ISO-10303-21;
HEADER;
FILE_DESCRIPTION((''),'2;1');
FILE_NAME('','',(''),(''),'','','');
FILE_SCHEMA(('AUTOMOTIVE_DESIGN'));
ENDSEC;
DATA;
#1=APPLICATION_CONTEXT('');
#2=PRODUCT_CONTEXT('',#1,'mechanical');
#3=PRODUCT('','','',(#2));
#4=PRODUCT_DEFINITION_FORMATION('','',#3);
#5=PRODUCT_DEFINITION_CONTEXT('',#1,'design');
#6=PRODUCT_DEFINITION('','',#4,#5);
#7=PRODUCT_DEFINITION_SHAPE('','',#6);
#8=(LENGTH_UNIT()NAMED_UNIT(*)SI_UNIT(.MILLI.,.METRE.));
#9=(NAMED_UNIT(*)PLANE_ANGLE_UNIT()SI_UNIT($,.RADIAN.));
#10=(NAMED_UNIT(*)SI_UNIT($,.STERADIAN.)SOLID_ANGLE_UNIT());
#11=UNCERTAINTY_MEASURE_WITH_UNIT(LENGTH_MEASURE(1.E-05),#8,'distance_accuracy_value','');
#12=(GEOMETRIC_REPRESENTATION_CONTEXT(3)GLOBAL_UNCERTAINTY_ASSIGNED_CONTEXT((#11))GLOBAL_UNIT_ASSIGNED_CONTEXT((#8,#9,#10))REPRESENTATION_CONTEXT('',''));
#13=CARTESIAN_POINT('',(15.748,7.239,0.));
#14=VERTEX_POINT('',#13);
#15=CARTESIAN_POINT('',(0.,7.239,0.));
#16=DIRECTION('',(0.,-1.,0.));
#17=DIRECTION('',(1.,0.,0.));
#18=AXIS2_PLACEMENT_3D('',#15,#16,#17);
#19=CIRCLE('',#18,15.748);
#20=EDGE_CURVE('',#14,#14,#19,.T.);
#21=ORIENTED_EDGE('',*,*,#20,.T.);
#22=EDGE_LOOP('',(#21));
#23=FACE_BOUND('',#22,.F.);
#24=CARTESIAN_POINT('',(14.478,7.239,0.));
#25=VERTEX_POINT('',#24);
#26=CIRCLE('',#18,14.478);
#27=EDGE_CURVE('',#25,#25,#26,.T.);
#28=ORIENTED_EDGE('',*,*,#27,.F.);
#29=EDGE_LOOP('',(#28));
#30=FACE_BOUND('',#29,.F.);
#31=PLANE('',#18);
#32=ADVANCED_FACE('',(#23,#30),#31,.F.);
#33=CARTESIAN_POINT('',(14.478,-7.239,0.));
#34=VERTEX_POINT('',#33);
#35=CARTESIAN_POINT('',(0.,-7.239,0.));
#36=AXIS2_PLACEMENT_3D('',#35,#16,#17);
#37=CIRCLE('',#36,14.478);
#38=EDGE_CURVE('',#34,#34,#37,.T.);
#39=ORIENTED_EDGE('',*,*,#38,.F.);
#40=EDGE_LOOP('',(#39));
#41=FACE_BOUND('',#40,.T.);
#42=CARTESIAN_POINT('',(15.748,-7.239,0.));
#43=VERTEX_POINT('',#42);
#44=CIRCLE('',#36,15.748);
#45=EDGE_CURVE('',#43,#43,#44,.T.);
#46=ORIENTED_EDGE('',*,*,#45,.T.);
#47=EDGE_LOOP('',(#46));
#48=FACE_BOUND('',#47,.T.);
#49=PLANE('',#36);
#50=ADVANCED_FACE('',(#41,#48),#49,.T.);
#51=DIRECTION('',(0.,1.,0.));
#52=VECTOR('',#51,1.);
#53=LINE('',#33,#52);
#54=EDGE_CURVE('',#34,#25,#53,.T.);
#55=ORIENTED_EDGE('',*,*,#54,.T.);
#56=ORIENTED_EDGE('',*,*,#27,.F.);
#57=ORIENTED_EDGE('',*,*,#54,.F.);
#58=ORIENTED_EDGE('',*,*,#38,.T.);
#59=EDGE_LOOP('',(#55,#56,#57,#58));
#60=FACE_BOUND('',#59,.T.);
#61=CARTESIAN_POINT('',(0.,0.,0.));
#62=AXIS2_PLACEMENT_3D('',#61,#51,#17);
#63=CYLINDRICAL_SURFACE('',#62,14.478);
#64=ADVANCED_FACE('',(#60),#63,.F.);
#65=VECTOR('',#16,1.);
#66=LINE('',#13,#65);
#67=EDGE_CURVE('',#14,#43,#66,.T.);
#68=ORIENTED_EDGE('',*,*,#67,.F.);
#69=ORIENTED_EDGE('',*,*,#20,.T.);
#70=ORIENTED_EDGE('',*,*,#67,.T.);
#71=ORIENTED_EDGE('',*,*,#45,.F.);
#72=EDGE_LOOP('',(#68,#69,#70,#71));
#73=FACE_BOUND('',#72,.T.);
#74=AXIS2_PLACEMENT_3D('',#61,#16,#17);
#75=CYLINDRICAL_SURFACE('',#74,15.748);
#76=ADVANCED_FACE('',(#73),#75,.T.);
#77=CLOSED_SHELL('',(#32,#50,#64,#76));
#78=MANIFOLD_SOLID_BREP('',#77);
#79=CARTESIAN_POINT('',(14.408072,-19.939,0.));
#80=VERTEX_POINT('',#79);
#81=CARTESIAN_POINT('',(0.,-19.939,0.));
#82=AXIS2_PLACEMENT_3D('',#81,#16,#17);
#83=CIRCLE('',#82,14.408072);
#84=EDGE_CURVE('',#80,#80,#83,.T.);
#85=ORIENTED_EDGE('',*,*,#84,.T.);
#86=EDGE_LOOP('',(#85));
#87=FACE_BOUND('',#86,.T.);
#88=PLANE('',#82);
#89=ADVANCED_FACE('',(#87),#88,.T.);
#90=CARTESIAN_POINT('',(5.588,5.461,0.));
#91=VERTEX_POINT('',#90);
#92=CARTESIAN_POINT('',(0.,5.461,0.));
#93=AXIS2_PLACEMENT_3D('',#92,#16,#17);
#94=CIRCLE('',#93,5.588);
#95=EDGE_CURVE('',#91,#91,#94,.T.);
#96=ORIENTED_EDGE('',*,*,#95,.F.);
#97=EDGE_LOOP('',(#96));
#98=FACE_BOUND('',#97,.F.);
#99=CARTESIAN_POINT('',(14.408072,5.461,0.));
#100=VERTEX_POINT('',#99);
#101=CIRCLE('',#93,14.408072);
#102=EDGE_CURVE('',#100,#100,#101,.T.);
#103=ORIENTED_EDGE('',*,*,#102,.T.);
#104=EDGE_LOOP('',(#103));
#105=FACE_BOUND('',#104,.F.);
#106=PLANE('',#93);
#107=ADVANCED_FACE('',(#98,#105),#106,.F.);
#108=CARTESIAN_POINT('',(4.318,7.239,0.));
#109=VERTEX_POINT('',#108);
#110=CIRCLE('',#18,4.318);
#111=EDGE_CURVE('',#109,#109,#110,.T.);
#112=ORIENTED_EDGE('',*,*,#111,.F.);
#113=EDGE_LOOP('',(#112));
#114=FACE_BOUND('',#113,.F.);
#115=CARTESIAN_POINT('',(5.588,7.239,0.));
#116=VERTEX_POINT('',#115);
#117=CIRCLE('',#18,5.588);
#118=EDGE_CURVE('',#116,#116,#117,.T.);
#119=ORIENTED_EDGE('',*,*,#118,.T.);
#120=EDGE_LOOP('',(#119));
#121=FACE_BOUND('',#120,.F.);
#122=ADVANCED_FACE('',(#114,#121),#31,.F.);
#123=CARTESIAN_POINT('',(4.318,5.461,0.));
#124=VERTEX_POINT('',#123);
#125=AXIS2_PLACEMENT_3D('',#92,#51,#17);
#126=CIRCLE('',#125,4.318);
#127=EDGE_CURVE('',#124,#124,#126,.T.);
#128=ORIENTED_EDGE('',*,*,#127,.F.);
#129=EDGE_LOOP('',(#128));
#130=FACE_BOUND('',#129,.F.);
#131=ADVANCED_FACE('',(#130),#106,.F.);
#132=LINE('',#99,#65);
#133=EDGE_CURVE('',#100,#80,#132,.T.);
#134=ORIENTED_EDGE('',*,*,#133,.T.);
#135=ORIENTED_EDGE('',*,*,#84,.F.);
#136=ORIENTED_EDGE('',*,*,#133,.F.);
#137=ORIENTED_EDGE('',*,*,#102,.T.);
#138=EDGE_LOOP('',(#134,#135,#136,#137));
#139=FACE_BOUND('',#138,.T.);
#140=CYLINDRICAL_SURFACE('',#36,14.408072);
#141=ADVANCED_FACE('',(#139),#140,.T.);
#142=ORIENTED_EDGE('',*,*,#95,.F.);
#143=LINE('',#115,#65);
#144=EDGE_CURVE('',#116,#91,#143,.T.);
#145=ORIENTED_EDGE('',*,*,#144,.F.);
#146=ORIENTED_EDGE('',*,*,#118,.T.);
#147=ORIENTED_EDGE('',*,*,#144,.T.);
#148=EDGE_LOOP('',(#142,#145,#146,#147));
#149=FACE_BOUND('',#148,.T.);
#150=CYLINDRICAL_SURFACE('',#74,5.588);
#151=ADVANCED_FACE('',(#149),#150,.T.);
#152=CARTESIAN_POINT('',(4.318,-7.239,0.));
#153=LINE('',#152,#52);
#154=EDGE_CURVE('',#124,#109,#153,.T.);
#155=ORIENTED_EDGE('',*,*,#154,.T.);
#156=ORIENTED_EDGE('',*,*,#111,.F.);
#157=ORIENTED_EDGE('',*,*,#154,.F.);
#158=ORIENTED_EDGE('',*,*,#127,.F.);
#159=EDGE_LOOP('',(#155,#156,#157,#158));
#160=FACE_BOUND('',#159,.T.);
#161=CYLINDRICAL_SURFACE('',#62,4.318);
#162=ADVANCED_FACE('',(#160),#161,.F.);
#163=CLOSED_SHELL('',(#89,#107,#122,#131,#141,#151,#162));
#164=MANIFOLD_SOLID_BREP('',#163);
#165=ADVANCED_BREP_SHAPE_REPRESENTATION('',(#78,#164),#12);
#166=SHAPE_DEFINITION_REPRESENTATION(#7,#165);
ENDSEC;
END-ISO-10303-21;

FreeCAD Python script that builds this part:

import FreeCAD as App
import Part
import Sketcher
Q = App.Units.Quantity

doc = App.newDocument("Part")
body = doc.addObject("PartDesign::Body", "Body")

# Sketch on XZ plane
sketch1 = body.newObject("Sketcher::SketchObject", "Sketch")
sketch1.AttachmentSupport = (doc.getObject("XZ_Plane"), [""])
sketch1.MapMode = "FlatFace"
sketch1.addGeometry(Part.Circle(App.Vector(0, 0, 0), App.Vector(0, 0, 1), 5.6), False)
sketch1.addGeometry(Part.Circle(App.Vector(0, 0, 0), App.Vector(0, 0, 1), 4.3), False)
sketch1.addConstraint(Sketcher.Constraint("Coincident", 0, 3, -1, 1))
sketch1.addConstraint(Sketcher.Constraint("Coincident", 1, 3, -1, 1))
sketch1.addConstraint(Sketcher.Constraint("Diameter", 0, Q("0.44 in")))
sketch1.addConstraint(Sketcher.Constraint("Diameter", 1, Q("0.34 in")))
pad1 = body.newObject("PartDesign::Pad", "Pad")
pad1.Profile = sketch1
pad1.Length = Q("0.57 in")
pad1.Midplane = True

# Sketch on XZ plane
sketch2 = body.newObject("Sketcher::SketchObject", "Sketch001")
sketch2.AttachmentSupport = (doc.getObject("XZ_Plane"), [""])
sketch2.MapMode = "FlatFace"
sketch2.AttachmentOffset = App.Placement(App.Vector(0, 0, 0.285 * 25.4), App.Rotation())
sketch2.addGeometry(Part.Circle(App.Vector(0, 0, 0), App.Vector(0, 0, 1), 14), False)
sketch2.addConstraint(Sketcher.Constraint("Coincident", 0, 3, -1, 1))
sketch2.addConstraint(Sketcher.Constraint("Diameter", 0, Q("28.816143 mm")))
pad2 = body.newObject("PartDesign::Pad", "Pad001")
pad2.Profile = sketch2
pad2.Length = Q("1 in")
pad2.Midplane = True
body2 = doc.addObject("PartDesign::Body", "Body001")

# Sketch on XZ plane
sketch3 = body2.newObject("Sketcher::SketchObject", "Sketch002")
sketch3.AttachmentSupport = (doc.getObject("XZ_Plane001"), [""])
sketch3.MapMode = "FlatFace"
sketch3.addGeometry(Part.Circle(App.Vector(0, 0, 0), App.Vector(0, 0, 1), 16), False)
sketch3.addGeometry(Part.Circle(App.Vector(0, 0, 0), App.Vector(0, 0, 1), 14), False)
sketch3.addConstraint(Sketcher.Constraint("Coincident", 0, 3, -1, 1))
sketch3.addConstraint(Sketcher.Constraint("Coincident", 1, 3, -1, 1))
sketch3.addConstraint(Sketcher.Constraint("Diameter", 0, Q("1.24 in")))
sketch3.addConstraint(Sketcher.Constraint("Diameter", 1, Q("1.14 in")))
pad3 = body2.newObject("PartDesign::Pad", "Pad002")
pad3.Profile = sketch3
pad3.Length = Q("0.57 in")
pad3.Midplane = True

doc.recompute()
